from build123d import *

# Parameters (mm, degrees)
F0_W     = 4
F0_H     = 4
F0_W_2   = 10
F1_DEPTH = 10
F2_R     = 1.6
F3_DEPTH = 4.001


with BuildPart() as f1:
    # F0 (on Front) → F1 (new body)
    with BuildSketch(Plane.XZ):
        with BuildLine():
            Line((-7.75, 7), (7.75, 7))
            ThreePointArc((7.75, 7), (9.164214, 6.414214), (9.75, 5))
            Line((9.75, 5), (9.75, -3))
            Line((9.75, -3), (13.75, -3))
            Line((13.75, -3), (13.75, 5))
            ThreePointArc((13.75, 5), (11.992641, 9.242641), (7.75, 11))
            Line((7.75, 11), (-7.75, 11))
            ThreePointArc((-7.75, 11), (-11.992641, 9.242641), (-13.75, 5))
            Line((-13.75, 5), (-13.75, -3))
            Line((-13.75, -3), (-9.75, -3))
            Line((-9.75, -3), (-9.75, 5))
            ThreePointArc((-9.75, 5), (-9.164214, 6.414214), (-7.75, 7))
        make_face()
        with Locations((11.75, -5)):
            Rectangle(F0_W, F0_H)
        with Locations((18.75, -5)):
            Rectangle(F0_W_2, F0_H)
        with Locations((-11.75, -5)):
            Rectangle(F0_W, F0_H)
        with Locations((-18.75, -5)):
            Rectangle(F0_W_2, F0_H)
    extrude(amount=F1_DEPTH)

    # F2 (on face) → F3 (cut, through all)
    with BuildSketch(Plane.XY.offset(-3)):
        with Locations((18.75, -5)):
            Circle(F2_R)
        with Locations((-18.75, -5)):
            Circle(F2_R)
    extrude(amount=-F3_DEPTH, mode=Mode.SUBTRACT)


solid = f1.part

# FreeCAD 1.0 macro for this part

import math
import FreeCAD as App
import Part
import Sketcher

V = App.Vector
Q = App.Units.Quantity

doc = App.newDocument("Part")
body = doc.addObject("PartDesign::Body", "Body")

# Sketch on XZ plane
sketch1 = body.newObject("Sketcher::SketchObject", "Sketch")
sketch1.AttachmentSupport = (doc.getObject("XZ_Plane"), [""])
sketch1.MapMode = "FlatFace"
sketch1.addGeometry([
    Part.LineSegment(V(-7.8, 7, 0), V(7.8, 7, 0)),  # 0
    Part.ArcOfCircle(Part.Circle(V(7.8, 5, 0), V(0, 0, 1), 2), math.radians(0), math.radians(90)),  # 1
    Part.LineSegment(V(9.8, 5, 0), V(9.8, -7, 0)),  # 2
    Part.LineSegment(V(9.8, -7, 0), V(23.8, -7, 0)),  # 3
    Part.LineSegment(V(23.8, -7, 0), V(23.8, -3, 0)),  # 4
    Part.LineSegment(V(23.8, -3, 0), V(13.8, -3, 0)),  # 5
    Part.LineSegment(V(13.8, -3, 0), V(13.8, 5, 0)),  # 6
    Part.ArcOfCircle(Part.Circle(V(7.8, 5, 0), V(0, 0, 1), 6), math.radians(0), math.radians(90)),  # 7
    Part.LineSegment(V(7.8, 11, 0), V(-7.8, 11, 0)),  # 8
    Part.ArcOfCircle(Part.Circle(V(-7.8, 5, 0), V(0, 0, 1), 6), math.radians(90), math.radians(180)),  # 9
    Part.LineSegment(V(-13.8, 5, 0), V(-13.8, -3, 0)),  # 10
    Part.LineSegment(V(-13.8, -3, 0), V(-23.8, -3, 0)),  # 11
    Part.LineSegment(V(-23.8, -3, 0), V(-23.8, -7, 0)),  # 12
    Part.LineSegment(V(-23.8, -7, 0), V(-9.8, -7, 0)),  # 13
    Part.LineSegment(V(-9.8, -7, 0), V(-9.8, 5, 0)),  # 14
    Part.ArcOfCircle(Part.Circle(V(-7.8, 5, 0), V(0, 0, 1), 2), math.radians(90), math.radians(180)),  # 15
], False)
sketch1.addConstraint([
    Sketcher.Constraint("Tangent", 0, 2, 1, 2),
    Sketcher.Constraint("Tangent", 1, 1, 2, 1),
    Sketcher.Constraint("Coincident", 2, 2, 3, 1),
    Sketcher.Constraint("Coincident", 3, 2, 4, 1),
    Sketcher.Constraint("Coincident", 4, 2, 5, 1),
    Sketcher.Constraint("Coincident", 5, 2, 6, 1),
    Sketcher.Constraint("Tangent", 6, 2, 7, 1),
    Sketcher.Constraint("Tangent", 7, 2, 8, 1),
    Sketcher.Constraint("Tangent", 8, 2, 9, 1),
    Sketcher.Constraint("Tangent", 9, 2, 10, 1),
    Sketcher.Constraint("Coincident", 10, 2, 11, 1),
    Sketcher.Constraint("Coincident", 11, 2, 12, 1),
    Sketcher.Constraint("Coincident", 12, 2, 13, 1),
    Sketcher.Constraint("Coincident", 13, 2, 14, 1),
    Sketcher.Constraint("Tangent", 14, 2, 15, 2),
    Sketcher.Constraint("Tangent", 15, 1, 0, 1),
    Sketcher.Constraint("Horizontal", 0),
    Sketcher.Constraint("Vertical", 2),
    Sketcher.Constraint("Horizontal", 3),
    Sketcher.Constraint("Vertical", 4),
    Sketcher.Constraint("Horizontal", 5),
    Sketcher.Constraint("Vertical", 6),
    Sketcher.Constraint("Horizontal", 8),
    Sketcher.Constraint("Vertical", 10),
    Sketcher.Constraint("Horizontal", 11),
    Sketcher.Constraint("Vertical", 12),
    Sketcher.Constraint("Horizontal", 13),
    Sketcher.Constraint("Vertical", 14),
    Sketcher.Constraint("Coincident", 7, 3, 1, 3),
    Sketcher.Constraint("Coincident", 15, 3, 9, 3),
    Sketcher.Constraint("Equal", 7, 9),
    Sketcher.Constraint("Symmetric", 5, 2, 10, 2, -2),
    Sketcher.Constraint("Symmetric", 3, 2, 12, 2, -2),
    Sketcher.Constraint("Radius", 1, Q("1.999999 mm")),
    Sketcher.Constraint("Radius", 7, Q("5.999999 mm")),
    Sketcher.Constraint("DistanceX", 3, 1, 3, 2, Q("14 mm")),
    Sketcher.Constraint("DistanceY", 2, 2, 2, 1, Q("12 mm")),
    Sketcher.Constraint("DistanceY", 4, 1, 4, 2, Q("4 mm")),
    Sketcher.Constraint("DistanceX", 0, 1, 0, 2, Q("15.5 mm")),
    Sketcher.Constraint("DistanceY", -1, 1, 1, 3, Q("5.000001 mm")),
])
pad1 = body.newObject("PartDesign::Pad", "Pad")
pad1.Profile = sketch1
pad1.Length = 10

# Sketch on XY plane
sketch2 = body.newObject("Sketcher::SketchObject", "Sketch001")
sketch2.AttachmentSupport = (doc.getObject("XY_Plane"), [""])
sketch2.MapMode = "FlatFace"
sketch2.AttachmentOffset = App.Placement(V(0, 0, -3), App.Rotation())
sketch2.addGeometry([
    Part.Circle(V(18.8, -5, 0), V(0, 0, 1), 1.6),
    Part.Circle(V(-18.8, -5, 0), V(0, 0, 1), 1.6),
], False)
sketch2.addConstraint([
    Sketcher.Constraint("Equal", 0, 1),
    Sketcher.Constraint("Symmetric", 0, 3, 1, 3, -2),
    Sketcher.Constraint("Diameter", 0, Q("3.2 mm")),
    Sketcher.Constraint("DistanceY", 0, 3, -1, 1, Q("5 mm")),
    Sketcher.Constraint("DistanceX", 1, 3, 0, 3, Q("37.5 mm")),
])
pocket1 = body.newObject("PartDesign::Pocket", "Pocket")
pocket1.Profile = sketch2
pocket1.Type = "ThroughAll"

doc.recompute()
